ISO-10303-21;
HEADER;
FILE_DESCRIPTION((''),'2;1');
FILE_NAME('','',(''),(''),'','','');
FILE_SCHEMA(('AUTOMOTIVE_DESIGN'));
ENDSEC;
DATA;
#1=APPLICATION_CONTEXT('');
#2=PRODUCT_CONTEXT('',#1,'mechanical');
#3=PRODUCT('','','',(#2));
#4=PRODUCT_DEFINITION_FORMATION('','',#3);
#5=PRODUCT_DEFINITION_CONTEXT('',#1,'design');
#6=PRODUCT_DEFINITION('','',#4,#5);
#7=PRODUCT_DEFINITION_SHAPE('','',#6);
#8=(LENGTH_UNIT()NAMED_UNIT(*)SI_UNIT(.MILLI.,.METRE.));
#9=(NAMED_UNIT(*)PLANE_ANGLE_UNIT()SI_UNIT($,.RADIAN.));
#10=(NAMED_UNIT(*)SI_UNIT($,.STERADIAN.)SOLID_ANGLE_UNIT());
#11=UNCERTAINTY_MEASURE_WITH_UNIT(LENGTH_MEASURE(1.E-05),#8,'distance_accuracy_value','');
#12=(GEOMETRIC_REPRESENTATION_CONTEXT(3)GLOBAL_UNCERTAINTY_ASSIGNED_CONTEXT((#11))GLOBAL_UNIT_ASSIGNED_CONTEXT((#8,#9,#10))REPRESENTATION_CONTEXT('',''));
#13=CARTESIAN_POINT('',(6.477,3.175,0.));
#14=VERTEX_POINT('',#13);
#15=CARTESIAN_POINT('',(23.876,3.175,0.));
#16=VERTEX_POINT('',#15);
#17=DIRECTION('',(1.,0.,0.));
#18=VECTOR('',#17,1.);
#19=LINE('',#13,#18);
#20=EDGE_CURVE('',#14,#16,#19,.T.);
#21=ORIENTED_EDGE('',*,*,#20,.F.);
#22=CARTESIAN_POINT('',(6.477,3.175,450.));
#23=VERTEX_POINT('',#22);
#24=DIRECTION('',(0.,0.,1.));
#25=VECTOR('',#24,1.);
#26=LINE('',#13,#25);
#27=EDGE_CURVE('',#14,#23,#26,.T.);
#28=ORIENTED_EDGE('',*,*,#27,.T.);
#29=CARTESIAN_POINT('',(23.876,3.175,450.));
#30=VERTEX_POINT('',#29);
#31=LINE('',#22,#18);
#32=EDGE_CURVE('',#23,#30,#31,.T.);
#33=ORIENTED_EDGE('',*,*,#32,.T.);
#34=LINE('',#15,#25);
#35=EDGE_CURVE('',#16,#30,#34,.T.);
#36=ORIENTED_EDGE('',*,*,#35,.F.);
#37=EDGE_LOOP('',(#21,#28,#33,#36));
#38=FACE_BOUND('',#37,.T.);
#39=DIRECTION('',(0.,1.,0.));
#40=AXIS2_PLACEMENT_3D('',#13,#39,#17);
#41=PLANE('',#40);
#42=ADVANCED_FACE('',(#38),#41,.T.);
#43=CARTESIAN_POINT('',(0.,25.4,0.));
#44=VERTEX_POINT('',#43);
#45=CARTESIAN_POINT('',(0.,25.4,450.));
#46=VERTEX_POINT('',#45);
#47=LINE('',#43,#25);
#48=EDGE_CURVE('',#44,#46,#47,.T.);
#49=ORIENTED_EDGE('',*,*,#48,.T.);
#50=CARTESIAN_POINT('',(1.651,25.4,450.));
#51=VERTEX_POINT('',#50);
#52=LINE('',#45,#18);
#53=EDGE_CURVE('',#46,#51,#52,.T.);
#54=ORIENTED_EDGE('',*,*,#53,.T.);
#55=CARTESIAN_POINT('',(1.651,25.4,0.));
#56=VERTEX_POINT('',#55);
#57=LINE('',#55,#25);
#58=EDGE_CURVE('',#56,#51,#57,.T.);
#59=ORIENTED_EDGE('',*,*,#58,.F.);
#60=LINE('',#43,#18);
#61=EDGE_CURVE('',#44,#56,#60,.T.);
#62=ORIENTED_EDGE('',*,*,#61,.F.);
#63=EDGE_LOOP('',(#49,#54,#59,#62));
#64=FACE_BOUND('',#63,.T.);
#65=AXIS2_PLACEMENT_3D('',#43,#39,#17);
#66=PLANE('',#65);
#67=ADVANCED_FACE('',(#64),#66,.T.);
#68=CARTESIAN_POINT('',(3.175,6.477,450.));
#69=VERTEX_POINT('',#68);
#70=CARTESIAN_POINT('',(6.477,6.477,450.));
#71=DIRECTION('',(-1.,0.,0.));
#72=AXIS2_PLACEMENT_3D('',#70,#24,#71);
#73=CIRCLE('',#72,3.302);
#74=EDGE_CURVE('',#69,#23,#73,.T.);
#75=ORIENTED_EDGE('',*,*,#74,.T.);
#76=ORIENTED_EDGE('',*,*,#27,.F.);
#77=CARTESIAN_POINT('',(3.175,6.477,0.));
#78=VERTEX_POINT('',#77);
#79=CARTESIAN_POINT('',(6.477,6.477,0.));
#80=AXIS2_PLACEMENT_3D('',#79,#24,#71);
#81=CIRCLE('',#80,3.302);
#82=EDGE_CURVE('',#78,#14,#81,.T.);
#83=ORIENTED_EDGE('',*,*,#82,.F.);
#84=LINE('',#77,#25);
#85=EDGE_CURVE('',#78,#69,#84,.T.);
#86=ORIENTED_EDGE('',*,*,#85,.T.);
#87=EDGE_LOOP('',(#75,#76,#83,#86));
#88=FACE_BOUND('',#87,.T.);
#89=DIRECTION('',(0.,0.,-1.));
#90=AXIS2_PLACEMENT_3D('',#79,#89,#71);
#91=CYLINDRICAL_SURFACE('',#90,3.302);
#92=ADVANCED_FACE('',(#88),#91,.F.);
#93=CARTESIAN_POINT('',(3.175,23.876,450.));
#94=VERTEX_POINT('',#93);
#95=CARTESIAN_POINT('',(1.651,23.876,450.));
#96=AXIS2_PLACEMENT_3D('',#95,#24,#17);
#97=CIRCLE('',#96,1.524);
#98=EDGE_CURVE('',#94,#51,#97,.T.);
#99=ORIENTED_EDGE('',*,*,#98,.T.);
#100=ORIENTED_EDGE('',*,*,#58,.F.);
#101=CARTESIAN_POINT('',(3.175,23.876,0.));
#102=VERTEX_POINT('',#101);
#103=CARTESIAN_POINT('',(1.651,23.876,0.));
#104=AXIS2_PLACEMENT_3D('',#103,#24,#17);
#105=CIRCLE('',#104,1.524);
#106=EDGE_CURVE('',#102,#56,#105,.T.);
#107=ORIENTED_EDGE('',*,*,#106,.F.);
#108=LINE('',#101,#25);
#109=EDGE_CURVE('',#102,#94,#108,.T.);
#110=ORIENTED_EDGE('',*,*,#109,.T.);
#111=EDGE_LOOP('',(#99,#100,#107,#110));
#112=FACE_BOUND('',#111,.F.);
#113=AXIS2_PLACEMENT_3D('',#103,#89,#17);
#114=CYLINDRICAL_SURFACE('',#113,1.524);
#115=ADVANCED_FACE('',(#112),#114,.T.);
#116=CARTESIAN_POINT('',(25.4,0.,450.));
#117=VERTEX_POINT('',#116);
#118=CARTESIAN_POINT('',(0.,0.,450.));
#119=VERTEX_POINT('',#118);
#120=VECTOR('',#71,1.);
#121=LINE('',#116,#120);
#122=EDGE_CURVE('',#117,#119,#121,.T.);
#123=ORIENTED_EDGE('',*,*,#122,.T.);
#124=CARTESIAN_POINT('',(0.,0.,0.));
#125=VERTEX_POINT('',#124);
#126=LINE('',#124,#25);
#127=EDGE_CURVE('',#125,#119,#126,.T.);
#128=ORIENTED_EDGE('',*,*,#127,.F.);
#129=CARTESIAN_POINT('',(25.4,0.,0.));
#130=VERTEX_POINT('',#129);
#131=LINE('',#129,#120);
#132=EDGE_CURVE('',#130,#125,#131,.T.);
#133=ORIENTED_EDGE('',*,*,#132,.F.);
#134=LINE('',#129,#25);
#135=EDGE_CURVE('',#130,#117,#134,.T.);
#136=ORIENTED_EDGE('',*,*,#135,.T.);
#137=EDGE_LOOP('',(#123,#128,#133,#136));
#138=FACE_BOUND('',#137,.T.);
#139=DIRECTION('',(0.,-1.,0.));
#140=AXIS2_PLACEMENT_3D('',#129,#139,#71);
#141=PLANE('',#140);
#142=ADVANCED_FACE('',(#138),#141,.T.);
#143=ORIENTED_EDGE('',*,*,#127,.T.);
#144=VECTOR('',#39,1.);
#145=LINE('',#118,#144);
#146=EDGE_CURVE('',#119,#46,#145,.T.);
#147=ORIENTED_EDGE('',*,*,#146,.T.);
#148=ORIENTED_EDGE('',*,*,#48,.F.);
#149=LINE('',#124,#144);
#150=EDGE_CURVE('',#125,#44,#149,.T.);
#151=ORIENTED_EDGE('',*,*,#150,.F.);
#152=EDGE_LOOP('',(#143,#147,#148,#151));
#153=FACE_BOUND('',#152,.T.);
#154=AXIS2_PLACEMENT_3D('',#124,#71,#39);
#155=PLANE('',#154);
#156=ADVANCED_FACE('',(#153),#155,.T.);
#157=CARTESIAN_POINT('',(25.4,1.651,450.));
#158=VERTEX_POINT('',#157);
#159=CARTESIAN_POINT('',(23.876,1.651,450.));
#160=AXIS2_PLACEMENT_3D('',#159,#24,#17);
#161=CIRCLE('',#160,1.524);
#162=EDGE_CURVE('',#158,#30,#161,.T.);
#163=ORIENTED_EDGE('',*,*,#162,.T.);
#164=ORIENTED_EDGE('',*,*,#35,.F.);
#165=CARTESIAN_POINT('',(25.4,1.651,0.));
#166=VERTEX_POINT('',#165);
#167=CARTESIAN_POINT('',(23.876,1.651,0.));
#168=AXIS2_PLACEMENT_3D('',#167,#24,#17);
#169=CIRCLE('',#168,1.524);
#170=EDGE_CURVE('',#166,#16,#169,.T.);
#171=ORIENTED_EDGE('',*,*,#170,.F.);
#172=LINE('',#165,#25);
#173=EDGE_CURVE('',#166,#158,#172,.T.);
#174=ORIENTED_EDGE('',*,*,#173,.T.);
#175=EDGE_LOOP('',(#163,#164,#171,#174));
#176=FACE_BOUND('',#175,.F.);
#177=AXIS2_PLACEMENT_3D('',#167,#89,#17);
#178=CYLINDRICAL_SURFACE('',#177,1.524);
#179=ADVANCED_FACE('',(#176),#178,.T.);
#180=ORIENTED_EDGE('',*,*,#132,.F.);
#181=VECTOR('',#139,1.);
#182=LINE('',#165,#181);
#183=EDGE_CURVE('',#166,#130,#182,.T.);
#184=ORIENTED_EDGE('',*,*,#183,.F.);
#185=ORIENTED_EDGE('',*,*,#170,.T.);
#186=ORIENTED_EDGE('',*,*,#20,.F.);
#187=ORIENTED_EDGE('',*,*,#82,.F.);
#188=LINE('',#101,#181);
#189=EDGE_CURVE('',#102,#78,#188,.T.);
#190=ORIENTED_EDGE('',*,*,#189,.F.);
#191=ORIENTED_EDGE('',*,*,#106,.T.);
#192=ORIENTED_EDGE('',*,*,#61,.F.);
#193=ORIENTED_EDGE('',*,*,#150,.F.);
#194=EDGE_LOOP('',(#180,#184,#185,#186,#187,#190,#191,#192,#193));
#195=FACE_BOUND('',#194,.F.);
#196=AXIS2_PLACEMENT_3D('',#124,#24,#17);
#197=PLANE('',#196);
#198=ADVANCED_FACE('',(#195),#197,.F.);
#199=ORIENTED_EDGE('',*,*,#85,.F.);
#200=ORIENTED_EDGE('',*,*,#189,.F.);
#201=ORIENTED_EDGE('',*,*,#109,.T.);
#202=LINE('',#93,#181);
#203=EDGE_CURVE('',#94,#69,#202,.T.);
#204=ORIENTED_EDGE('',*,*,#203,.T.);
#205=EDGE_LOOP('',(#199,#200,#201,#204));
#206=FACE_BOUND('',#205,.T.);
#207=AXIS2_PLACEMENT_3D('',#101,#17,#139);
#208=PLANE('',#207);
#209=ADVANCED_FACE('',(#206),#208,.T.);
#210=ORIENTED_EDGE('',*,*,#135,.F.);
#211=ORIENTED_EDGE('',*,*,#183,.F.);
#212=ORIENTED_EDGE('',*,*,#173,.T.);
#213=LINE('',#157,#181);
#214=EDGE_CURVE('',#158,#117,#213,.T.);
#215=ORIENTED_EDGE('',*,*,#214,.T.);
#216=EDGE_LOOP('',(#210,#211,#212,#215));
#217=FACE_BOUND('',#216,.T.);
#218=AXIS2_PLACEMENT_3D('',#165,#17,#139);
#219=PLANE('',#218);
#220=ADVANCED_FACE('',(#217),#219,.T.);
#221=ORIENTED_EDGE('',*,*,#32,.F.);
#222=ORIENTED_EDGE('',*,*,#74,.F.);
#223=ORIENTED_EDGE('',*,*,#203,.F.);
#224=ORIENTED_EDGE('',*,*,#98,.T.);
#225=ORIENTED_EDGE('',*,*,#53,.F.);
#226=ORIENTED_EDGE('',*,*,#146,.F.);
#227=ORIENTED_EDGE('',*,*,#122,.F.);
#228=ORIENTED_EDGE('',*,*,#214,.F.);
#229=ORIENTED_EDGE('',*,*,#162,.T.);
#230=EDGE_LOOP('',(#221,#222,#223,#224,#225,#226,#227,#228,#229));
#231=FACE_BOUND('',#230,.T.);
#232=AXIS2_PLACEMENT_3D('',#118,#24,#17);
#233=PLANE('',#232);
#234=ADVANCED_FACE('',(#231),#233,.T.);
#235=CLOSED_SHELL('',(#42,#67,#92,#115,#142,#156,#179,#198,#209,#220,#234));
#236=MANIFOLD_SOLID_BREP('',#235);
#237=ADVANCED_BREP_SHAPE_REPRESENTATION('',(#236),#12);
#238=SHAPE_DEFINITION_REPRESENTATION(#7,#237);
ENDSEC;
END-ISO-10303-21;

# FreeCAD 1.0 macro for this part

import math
import FreeCAD as App
import Part
import Sketcher
from FreeCAD import Vector
Q = App.Units.Quantity

doc = App.newDocument("Part")
body = doc.addObject("PartDesign::Body", "Body")

# Sketch on XY plane
sketch1 = doc.addObject("Sketcher::SketchObject", "Sketch")
body.addObject(sketch1)
sketch1.AttachmentSupport = (doc.XY_Plane, [""])
sketch1.MapMode = "FlatFace"
sketch1.addGeometry([
    Part.LineSegment(Vector(0, 0, 0), Vector(25.4, 0, 0)),  # 0
    Part.LineSegment(Vector(25.4, 0, 0), Vector(25.4, 1.651, 0)),  # 1
    Part.ArcOfCircle(Part.Circle(Vector(23.876, 1.651, 0), Vector(0, 0, 1), 1.524), math.radians(0), math.radians(90)),  # 2
    Part.LineSegment(Vector(23.876, 3.175, 0), Vector(6.477, 3.175, 0)),  # 3
    Part.ArcOfCircle(Part.Circle(Vector(6.477, 6.477, 0), Vector(0, 0, 1), 3.302), math.radians(180), math.radians(270)),  # 4
    Part.LineSegment(Vector(3.175, 6.477, 0), Vector(3.175, 23.876, 0)),  # 5
    Part.ArcOfCircle(Part.Circle(Vector(1.651, 23.876, 0), Vector(0, 0, 1), 1.524), math.radians(0), math.radians(90)),  # 6
    Part.LineSegment(Vector(1.651, 25.4, 0), Vector(0, 25.4, 0)),  # 7
    Part.LineSegment(Vector(0, 25.4, 0), Vector(0, 0, 0)),  # 8
], False)
sketch1.addConstraint([
    Sketcher.Constraint("Coincident", 0, 2, 1, 1),
    Sketcher.Constraint("Tangent", 1, 2, 2, 1),
    Sketcher.Constraint("Tangent", 2, 2, 3, 1),
    Sketcher.Constraint("Tangent", 3, 2, 4, 2),
    Sketcher.Constraint("Tangent", 4, 1, 5, 1),
    Sketcher.Constraint("Tangent", 5, 2, 6, 1),
    Sketcher.Constraint("Tangent", 6, 2, 7, 1),
    Sketcher.Constraint("Coincident", 7, 2, 8, 1),
    Sketcher.Constraint("Coincident", 8, 2, 0, 1),
    Sketcher.Constraint("Horizontal", 0),
    Sketcher.Constraint("Vertical", 1),
    Sketcher.Constraint("Horizontal", 3),
    Sketcher.Constraint("Vertical", 5),
    Sketcher.Constraint("Horizontal", 7),
    Sketcher.Constraint("Vertical", 8),
    Sketcher.Constraint("Coincident", 8, 2, -1, 1),
    Sketcher.Constraint("Equal", 2, 6),
    Sketcher.Constraint("Equal", 7, 1),
    Sketcher.Constraint("Equal", 3, 5),
    Sketcher.Constraint("DistanceX", 0, 1, 0, 2, Q("1 in")),
    Sketcher.Constraint("Radius", 2, Q("0.06 in")),
    Sketcher.Constraint("Radius", 4, Q("0.13 in")),
    Sketcher.Constraint("DistanceY", -1, 1, 2, 2, Q("0.125 in")),
])
pad1 = doc.addObject("PartDesign::Pad", "Pad")
body.addObject(pad1)
pad1.Profile = sketch1
pad1.Length = 450

doc.recompute()
